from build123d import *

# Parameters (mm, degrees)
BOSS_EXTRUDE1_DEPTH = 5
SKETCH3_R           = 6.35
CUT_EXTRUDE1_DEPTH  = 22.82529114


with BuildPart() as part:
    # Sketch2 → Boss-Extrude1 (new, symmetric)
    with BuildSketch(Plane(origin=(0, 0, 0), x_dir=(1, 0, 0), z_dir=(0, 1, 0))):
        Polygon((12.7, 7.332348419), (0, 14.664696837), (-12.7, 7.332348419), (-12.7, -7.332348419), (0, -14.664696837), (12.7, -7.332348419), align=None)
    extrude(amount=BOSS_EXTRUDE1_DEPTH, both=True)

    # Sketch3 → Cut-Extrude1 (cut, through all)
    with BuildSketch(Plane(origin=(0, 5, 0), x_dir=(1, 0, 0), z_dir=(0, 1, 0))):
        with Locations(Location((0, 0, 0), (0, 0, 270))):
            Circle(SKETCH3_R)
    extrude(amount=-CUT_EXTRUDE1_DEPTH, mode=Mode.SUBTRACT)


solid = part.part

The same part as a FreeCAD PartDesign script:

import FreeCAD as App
import Part
import Sketcher
from FreeCAD import Vector
Q = App.Units.Quantity


def add_polygon(sketch, points):
    """Adds a closed chain of lines whose ends are joined by coincident constraints."""
    first, n = sketch.GeometryCount, len(points)
    for a, b in zip(points, points[1:] + points[:1]):
        sketch.addGeometry(Part.LineSegment(App.Vector(*a, 0), App.Vector(*b, 0)), False)
    for i in range(n):
        sketch.addConstraint(Sketcher.Constraint("Coincident", first + i, 2, first + (i + 1) % n, 1))

doc = App.newDocument("Part")
body = doc.addObject("PartDesign::Body", "Body")

# Sketch on XZ plane
sketch1 = body.newObject("Sketcher::SketchObject", "Sketch")
sketch1.AttachmentSupport = (doc.getObject("XZ_Plane"), [""])
sketch1.MapMode = "FlatFace"
add_polygon(sketch1, [(13, -7), (0, -15), (-13, -7), (-13, 7), (0, 15), (13, 7)])  # lines 0-5
sketch1.addConstraint(Sketcher.Constraint("Vertical", 2))
sketch1.addConstraint(Sketcher.Constraint("Vertical", 5))
sketch1.addConstraint(Sketcher.Constraint("Symmetric", 0, 2, 3, 2, -1, 1))
sketch1.addConstraint(Sketcher.Constraint("Symmetric", 1, 2, 4, 2, -1, 1))
sketch1.addConstraint(Sketcher.Constraint("PointOnObject", 0, 2, -2))
sketch1.addConstraint(Sketcher.Constraint("Parallel", 0, 3))
sketch1.addConstraint(Sketcher.Constraint("Horizontal", 2, 2, 4, 2))
sketch1.addConstraint(Sketcher.Constraint("Angle", 0, Q("-150 deg")))
sketch1.addConstraint(Sketcher.Constraint("DistanceX", 1, 2, -1, 1, 12.7))
sketch1.addConstraint(Sketcher.Constraint("DistanceY", 2, 1, 2, 2, 14.664697))
pad1 = body.newObject("PartDesign::Pad", "Pad")
pad1.Profile = sketch1
pad1.Length = 10
pad1.Midplane = True

# Sketch on XZ plane
sketch2 = body.newObject("Sketcher::SketchObject", "Sketch001")
sketch2.AttachmentSupport = (doc.getObject("XZ_Plane"), [""])
sketch2.MapMode = "FlatFace"
sketch2.AttachmentOffset = App.Placement(Vector(0, 0, -5), App.Rotation())
sketch2.addGeometry(Part.Circle(Vector(0, 0, 0), Vector(0, 0, 1), 6), False)
sketch2.addConstraint(Sketcher.Constraint("Coincident", 0, 3, -1, 1))
sketch2.addConstraint(Sketcher.Constraint("Diameter", 0, 12.7))
pocket1 = body.newObject("PartDesign::Pocket", "Pocket")
pocket1.Profile = sketch2
pocket1.Type = "ThroughAll"
pocket1.Reversed = True

doc.recompute()
